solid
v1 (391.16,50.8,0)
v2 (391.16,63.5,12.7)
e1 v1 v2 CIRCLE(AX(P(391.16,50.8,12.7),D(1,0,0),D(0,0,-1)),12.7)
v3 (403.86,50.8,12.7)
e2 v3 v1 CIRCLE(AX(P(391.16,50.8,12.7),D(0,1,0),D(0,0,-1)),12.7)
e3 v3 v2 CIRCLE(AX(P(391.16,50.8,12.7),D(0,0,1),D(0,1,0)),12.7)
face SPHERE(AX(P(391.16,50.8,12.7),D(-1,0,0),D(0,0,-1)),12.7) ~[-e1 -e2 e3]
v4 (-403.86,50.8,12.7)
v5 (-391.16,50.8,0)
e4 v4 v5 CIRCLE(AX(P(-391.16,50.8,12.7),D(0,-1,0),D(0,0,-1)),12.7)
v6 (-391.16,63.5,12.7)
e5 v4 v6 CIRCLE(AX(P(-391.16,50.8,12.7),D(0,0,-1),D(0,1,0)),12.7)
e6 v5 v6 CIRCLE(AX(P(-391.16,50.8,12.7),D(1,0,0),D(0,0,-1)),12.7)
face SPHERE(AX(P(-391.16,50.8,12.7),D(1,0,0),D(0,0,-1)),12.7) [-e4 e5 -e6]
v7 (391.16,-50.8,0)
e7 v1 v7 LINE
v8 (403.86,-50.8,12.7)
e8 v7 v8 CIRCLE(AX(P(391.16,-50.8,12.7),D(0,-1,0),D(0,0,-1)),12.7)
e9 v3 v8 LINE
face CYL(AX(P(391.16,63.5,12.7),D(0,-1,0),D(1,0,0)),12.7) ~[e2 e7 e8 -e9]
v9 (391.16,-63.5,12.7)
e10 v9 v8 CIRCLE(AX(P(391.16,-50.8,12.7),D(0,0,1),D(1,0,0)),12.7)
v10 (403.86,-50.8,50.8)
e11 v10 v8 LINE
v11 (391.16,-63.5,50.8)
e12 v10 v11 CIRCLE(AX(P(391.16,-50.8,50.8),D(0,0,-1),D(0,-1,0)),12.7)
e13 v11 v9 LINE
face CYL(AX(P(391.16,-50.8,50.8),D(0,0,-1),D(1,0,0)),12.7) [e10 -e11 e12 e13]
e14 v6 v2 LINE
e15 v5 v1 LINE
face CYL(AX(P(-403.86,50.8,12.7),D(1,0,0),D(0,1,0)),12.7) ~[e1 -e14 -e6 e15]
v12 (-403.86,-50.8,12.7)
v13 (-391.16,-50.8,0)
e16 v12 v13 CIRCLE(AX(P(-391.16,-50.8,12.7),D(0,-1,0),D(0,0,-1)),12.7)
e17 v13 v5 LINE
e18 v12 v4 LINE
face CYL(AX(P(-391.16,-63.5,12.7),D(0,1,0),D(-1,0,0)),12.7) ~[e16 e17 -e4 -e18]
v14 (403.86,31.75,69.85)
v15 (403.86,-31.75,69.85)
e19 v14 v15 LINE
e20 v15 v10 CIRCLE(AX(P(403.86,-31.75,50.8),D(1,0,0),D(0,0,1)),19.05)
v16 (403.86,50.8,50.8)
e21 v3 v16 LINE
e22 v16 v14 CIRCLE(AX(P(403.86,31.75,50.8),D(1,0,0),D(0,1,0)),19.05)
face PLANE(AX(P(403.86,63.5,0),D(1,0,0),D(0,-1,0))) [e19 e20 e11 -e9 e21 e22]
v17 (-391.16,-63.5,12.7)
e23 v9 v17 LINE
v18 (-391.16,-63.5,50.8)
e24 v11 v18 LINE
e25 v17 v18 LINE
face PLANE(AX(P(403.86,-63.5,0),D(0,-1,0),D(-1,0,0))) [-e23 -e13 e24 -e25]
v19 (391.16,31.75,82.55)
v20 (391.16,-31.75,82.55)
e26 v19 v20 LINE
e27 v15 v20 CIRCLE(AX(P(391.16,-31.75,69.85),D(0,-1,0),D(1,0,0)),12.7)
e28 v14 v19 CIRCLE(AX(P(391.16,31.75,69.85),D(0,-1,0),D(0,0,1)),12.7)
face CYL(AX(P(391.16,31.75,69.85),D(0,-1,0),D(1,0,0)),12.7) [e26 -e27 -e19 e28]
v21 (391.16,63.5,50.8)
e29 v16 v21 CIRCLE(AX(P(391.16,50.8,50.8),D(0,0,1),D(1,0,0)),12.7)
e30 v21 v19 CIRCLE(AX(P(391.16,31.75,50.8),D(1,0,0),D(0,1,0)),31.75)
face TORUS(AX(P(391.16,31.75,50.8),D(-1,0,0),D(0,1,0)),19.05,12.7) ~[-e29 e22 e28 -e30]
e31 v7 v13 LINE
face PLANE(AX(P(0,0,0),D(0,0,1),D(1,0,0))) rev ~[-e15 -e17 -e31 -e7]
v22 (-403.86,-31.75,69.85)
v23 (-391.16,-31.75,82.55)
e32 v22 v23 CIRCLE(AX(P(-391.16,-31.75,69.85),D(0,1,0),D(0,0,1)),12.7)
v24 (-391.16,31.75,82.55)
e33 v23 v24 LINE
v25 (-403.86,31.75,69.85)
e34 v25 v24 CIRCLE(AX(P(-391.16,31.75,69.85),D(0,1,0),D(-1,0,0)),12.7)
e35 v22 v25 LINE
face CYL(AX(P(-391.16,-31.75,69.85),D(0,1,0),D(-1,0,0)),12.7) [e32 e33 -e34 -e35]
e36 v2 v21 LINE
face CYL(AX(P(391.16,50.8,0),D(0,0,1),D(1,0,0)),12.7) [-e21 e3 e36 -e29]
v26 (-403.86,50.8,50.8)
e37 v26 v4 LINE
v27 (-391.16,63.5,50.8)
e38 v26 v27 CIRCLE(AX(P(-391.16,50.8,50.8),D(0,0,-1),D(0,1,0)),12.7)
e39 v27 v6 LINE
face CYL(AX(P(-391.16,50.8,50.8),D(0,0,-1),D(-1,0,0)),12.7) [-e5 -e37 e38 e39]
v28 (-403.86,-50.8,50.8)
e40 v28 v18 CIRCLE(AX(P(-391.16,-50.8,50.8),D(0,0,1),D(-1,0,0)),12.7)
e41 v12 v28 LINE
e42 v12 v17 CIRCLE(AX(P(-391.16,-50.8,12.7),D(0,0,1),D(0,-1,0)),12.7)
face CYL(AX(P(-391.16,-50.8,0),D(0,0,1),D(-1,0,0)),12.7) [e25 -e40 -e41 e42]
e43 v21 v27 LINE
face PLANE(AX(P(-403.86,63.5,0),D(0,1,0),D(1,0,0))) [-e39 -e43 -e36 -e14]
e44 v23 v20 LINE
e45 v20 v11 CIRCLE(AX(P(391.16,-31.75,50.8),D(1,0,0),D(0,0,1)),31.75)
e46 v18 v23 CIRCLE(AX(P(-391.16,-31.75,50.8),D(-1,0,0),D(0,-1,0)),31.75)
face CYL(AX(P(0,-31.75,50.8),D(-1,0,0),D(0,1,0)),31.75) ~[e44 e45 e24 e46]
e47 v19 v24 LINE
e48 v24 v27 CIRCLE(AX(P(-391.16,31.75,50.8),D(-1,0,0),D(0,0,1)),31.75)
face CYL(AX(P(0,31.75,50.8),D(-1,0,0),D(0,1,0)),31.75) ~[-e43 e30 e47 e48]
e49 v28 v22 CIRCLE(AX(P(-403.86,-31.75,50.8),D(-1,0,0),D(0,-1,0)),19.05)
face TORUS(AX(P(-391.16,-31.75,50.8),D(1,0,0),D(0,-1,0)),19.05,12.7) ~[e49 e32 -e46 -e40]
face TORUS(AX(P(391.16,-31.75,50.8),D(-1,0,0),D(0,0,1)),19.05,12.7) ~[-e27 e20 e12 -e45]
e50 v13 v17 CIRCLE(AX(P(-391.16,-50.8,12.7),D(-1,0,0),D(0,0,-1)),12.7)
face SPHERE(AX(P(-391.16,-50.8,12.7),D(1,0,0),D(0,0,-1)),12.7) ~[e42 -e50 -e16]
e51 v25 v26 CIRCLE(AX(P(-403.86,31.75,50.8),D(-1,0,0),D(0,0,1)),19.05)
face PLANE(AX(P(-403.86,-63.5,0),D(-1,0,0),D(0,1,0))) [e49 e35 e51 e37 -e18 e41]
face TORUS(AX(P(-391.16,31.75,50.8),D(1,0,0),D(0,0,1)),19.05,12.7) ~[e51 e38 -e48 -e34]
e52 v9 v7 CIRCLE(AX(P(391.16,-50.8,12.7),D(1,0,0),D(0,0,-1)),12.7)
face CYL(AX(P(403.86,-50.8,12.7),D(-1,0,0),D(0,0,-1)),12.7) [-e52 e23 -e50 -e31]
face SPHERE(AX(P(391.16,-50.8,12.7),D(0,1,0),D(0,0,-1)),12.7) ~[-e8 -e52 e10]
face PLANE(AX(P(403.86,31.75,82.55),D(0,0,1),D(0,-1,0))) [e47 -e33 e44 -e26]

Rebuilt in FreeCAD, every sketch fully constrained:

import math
import FreeCAD as App
import Part
import Sketcher
from FreeCAD import Vector
Q = App.Units.Quantity


def add_polygon(sketch, points):
    """Adds a closed chain of lines whose ends are joined by coincident constraints."""
    first, n = sketch.GeometryCount, len(points)
    for a, b in zip(points, points[1:] + points[:1]):
        sketch.addGeometry(Part.LineSegment(App.Vector(*a, 0), App.Vector(*b, 0)), False)
    for i in range(n):
        sketch.addConstraint(Sketcher.Constraint("Coincident", first + i, 2, first + (i + 1) % n, 1))

doc = App.newDocument("Part")
body = doc.addObject("PartDesign::Body", "Body")
body.AllowCompound = True

# Sketch on XY plane
sketch1 = body.newObject("Sketcher::SketchObject", "Sketch")
sketch1.AttachmentSupport = (doc.getObject("XY_Plane"), [""])
sketch1.MapMode = "FlatFace"
add_polygon(sketch1, [(404, 64), (-404, 64), (-404, -64), (404, -64)])  # lines 0-3
sketch1.addConstraint([
    Sketcher.Constraint("Horizontal", 0),
    Sketcher.Constraint("Vertical", 1),
    Sketcher.Constraint("Horizontal", 2),
    Sketcher.Constraint("Vertical", 3),
    Sketcher.Constraint("Symmetric", 0, 2, 2, 2, -1, 1),
    Sketcher.Constraint("DistanceY", 1, 2, 1, 1, Q("5 in")),
    Sketcher.Constraint("DistanceX", 0, 2, 0, 1, Q("31.8 in")),
])
pad1 = body.newObject("PartDesign::Pad", "Pad")
pad1.Profile = sketch1
pad1.Length = Q("0.75 in")

# Sketch on YZ plane
sketch2 = body.newObject("Sketcher::SketchObject", "Sketch001")
sketch2.AttachmentSupport = (doc.getObject("YZ_Plane"), [""])
sketch2.MapMode = "FlatFace"
sketch2.addGeometry([
    Part.Circle(Vector(32, 51, 0), Vector(0, 0, 1), 32),
    Part.Circle(Vector(-32, 51, 0), Vector(0, 0, 1), 32),
], False)
sketch2.addConstraint([
    Sketcher.Constraint("Equal", 0, 1),
    Sketcher.Constraint("Symmetric", 0, 3, 1, 3, -2),
    Sketcher.Constraint("Diameter", 0, Q("2.5 in")),
    Sketcher.Constraint("DistanceX", 1, 3, 0, 3, Q("2.5 in")),
    Sketcher.Constraint("DistanceY", -1, 1, 0, 3, Q("2 in")),
])
pad2 = body.newObject("PartDesign::Pad", "Pad001")
pad2.Profile = sketch2
pad2.Length = Q("31.8 in")
pad2.Midplane = True

# Sketch on YZ plane
sketch3 = body.newObject("Sketcher::SketchObject", "Sketch002")
sketch3.AttachmentSupport = (doc.getObject("YZ_Plane"), [""])
sketch3.MapMode = "FlatFace"
sketch3.AttachmentOffset = App.Placement(Vector(0, 0, 15.9 * 25.4), App.Rotation())
sketch3.addGeometry([
    Part.LineSegment(Vector(32, 19, 0), Vector(64, 19, 0)),  # 0
    Part.LineSegment(Vector(64, 19, 0), Vector(64, 51, 0)),  # 1
    Part.ArcOfCircle(Part.Circle(Vector(32, 51, 0), Vector(0, 0, 1), 32), math.radians(-90), math.radians(0)),  # 2
    Part.LineSegment(Vector(-32, 19, 0), Vector(32, 19, 0)),  # 3
    Part.ArcOfCircle(Part.Circle(Vector(32, 51, 0), Vector(0, 0, 1), 32), math.radians(180), math.radians(270)),  # 4
    Part.ArcOfCircle(Part.Circle(Vector(-32, 51, 0), Vector(0, 0, 1), 32), math.radians(-90), math.radians(0)),  # 5
    Part.LineSegment(Vector(-64, 19, 0), Vector(-32, 19, 0)),  # 6
    Part.ArcOfCircle(Part.Circle(Vector(-32, 51, 0), Vector(0, 0, 1), 32), math.radians(180), math.radians(270)),  # 7
    Part.LineSegment(Vector(-64, 51, 0), Vector(-64, 19, 0)),  # 8
    Part.ArcOfCircle(Part.Circle(Vector(-32, 51, 0), Vector(0, 0, 1), 32), math.radians(0), math.radians(90)),  # 9
    Part.ArcOfCircle(Part.Circle(Vector(32, 51, 0), Vector(0, 0, 1), 32), math.radians(90), math.radians(180)),  # 10
    Part.LineSegment(Vector(32, 83, 0), Vector(-32, 83, 0)),  # 11
], False)
sketch3.addConstraint([
    Sketcher.Constraint("Coincident", 0, 2, 1, 1),
    Sketcher.Constraint("Tangent", 1, 2, 2, 2),
    Sketcher.Constraint("Tangent", 2, 1, 0, 1),
    Sketcher.Constraint("Tangent", 3, 2, 4, 2),
    Sketcher.Constraint("Tangent", 4, 1, 5, 2),
    Sketcher.Constraint("Tangent", 5, 1, 3, 1),
    Sketcher.Constraint("Tangent", 6, 2, 7, 2),
    Sketcher.Constraint("Tangent", 7, 1, 8, 1),
    Sketcher.Constraint("Coincident", 8, 2, 6, 1),
    Sketcher.Constraint("Tangent", 9, 1, 10, 2),
    Sketcher.Constraint("Tangent", 10, 1, 11, 1),
    Sketcher.Constraint("Tangent", 11, 2, 9, 2),
    Sketcher.Constraint("Horizontal", 0),
    Sketcher.Constraint("Vertical", 1),
    Sketcher.Constraint("Horizontal", 3),
    Sketcher.Constraint("Horizontal", 6),
    Sketcher.Constraint("Vertical", 8),
    Sketcher.Constraint("Horizontal", 11),
    Sketcher.Constraint("Coincident", 4, 3, 2, 3),
    Sketcher.Constraint("Coincident", 7, 3, 5, 3),
    Sketcher.Constraint("Coincident", 9, 3, 5, 3),
    Sketcher.Constraint("Coincident", 10, 3, 2, 3),
    Sketcher.Constraint("Equal", 2, 4),
    Sketcher.Constraint("Equal", 4, 5),
    Sketcher.Constraint("Equal", 5, 7),
    Sketcher.Constraint("PointOnObject", 4, 1, -2),
    Sketcher.Constraint("Radius", 2, Q("1.25 in")),
    Sketcher.Constraint("DistanceY", -1, 1, 2, 3, Q("2 in")),
])
pad3 = body.newObject("PartDesign::Pad", "Pad002")
pad3.Profile = sketch3
pad3.Length = Q("31.8 in")
pad3.Reversed = True
doc.recompute()

fillet = body.newObject("PartDesign::Fillet", "Fillet")
fillet.Base = (pad3, ["Edge1"])
fillet.UseAllEdges = True
fillet.Radius = Q("0.5 in")

doc.recompute()
